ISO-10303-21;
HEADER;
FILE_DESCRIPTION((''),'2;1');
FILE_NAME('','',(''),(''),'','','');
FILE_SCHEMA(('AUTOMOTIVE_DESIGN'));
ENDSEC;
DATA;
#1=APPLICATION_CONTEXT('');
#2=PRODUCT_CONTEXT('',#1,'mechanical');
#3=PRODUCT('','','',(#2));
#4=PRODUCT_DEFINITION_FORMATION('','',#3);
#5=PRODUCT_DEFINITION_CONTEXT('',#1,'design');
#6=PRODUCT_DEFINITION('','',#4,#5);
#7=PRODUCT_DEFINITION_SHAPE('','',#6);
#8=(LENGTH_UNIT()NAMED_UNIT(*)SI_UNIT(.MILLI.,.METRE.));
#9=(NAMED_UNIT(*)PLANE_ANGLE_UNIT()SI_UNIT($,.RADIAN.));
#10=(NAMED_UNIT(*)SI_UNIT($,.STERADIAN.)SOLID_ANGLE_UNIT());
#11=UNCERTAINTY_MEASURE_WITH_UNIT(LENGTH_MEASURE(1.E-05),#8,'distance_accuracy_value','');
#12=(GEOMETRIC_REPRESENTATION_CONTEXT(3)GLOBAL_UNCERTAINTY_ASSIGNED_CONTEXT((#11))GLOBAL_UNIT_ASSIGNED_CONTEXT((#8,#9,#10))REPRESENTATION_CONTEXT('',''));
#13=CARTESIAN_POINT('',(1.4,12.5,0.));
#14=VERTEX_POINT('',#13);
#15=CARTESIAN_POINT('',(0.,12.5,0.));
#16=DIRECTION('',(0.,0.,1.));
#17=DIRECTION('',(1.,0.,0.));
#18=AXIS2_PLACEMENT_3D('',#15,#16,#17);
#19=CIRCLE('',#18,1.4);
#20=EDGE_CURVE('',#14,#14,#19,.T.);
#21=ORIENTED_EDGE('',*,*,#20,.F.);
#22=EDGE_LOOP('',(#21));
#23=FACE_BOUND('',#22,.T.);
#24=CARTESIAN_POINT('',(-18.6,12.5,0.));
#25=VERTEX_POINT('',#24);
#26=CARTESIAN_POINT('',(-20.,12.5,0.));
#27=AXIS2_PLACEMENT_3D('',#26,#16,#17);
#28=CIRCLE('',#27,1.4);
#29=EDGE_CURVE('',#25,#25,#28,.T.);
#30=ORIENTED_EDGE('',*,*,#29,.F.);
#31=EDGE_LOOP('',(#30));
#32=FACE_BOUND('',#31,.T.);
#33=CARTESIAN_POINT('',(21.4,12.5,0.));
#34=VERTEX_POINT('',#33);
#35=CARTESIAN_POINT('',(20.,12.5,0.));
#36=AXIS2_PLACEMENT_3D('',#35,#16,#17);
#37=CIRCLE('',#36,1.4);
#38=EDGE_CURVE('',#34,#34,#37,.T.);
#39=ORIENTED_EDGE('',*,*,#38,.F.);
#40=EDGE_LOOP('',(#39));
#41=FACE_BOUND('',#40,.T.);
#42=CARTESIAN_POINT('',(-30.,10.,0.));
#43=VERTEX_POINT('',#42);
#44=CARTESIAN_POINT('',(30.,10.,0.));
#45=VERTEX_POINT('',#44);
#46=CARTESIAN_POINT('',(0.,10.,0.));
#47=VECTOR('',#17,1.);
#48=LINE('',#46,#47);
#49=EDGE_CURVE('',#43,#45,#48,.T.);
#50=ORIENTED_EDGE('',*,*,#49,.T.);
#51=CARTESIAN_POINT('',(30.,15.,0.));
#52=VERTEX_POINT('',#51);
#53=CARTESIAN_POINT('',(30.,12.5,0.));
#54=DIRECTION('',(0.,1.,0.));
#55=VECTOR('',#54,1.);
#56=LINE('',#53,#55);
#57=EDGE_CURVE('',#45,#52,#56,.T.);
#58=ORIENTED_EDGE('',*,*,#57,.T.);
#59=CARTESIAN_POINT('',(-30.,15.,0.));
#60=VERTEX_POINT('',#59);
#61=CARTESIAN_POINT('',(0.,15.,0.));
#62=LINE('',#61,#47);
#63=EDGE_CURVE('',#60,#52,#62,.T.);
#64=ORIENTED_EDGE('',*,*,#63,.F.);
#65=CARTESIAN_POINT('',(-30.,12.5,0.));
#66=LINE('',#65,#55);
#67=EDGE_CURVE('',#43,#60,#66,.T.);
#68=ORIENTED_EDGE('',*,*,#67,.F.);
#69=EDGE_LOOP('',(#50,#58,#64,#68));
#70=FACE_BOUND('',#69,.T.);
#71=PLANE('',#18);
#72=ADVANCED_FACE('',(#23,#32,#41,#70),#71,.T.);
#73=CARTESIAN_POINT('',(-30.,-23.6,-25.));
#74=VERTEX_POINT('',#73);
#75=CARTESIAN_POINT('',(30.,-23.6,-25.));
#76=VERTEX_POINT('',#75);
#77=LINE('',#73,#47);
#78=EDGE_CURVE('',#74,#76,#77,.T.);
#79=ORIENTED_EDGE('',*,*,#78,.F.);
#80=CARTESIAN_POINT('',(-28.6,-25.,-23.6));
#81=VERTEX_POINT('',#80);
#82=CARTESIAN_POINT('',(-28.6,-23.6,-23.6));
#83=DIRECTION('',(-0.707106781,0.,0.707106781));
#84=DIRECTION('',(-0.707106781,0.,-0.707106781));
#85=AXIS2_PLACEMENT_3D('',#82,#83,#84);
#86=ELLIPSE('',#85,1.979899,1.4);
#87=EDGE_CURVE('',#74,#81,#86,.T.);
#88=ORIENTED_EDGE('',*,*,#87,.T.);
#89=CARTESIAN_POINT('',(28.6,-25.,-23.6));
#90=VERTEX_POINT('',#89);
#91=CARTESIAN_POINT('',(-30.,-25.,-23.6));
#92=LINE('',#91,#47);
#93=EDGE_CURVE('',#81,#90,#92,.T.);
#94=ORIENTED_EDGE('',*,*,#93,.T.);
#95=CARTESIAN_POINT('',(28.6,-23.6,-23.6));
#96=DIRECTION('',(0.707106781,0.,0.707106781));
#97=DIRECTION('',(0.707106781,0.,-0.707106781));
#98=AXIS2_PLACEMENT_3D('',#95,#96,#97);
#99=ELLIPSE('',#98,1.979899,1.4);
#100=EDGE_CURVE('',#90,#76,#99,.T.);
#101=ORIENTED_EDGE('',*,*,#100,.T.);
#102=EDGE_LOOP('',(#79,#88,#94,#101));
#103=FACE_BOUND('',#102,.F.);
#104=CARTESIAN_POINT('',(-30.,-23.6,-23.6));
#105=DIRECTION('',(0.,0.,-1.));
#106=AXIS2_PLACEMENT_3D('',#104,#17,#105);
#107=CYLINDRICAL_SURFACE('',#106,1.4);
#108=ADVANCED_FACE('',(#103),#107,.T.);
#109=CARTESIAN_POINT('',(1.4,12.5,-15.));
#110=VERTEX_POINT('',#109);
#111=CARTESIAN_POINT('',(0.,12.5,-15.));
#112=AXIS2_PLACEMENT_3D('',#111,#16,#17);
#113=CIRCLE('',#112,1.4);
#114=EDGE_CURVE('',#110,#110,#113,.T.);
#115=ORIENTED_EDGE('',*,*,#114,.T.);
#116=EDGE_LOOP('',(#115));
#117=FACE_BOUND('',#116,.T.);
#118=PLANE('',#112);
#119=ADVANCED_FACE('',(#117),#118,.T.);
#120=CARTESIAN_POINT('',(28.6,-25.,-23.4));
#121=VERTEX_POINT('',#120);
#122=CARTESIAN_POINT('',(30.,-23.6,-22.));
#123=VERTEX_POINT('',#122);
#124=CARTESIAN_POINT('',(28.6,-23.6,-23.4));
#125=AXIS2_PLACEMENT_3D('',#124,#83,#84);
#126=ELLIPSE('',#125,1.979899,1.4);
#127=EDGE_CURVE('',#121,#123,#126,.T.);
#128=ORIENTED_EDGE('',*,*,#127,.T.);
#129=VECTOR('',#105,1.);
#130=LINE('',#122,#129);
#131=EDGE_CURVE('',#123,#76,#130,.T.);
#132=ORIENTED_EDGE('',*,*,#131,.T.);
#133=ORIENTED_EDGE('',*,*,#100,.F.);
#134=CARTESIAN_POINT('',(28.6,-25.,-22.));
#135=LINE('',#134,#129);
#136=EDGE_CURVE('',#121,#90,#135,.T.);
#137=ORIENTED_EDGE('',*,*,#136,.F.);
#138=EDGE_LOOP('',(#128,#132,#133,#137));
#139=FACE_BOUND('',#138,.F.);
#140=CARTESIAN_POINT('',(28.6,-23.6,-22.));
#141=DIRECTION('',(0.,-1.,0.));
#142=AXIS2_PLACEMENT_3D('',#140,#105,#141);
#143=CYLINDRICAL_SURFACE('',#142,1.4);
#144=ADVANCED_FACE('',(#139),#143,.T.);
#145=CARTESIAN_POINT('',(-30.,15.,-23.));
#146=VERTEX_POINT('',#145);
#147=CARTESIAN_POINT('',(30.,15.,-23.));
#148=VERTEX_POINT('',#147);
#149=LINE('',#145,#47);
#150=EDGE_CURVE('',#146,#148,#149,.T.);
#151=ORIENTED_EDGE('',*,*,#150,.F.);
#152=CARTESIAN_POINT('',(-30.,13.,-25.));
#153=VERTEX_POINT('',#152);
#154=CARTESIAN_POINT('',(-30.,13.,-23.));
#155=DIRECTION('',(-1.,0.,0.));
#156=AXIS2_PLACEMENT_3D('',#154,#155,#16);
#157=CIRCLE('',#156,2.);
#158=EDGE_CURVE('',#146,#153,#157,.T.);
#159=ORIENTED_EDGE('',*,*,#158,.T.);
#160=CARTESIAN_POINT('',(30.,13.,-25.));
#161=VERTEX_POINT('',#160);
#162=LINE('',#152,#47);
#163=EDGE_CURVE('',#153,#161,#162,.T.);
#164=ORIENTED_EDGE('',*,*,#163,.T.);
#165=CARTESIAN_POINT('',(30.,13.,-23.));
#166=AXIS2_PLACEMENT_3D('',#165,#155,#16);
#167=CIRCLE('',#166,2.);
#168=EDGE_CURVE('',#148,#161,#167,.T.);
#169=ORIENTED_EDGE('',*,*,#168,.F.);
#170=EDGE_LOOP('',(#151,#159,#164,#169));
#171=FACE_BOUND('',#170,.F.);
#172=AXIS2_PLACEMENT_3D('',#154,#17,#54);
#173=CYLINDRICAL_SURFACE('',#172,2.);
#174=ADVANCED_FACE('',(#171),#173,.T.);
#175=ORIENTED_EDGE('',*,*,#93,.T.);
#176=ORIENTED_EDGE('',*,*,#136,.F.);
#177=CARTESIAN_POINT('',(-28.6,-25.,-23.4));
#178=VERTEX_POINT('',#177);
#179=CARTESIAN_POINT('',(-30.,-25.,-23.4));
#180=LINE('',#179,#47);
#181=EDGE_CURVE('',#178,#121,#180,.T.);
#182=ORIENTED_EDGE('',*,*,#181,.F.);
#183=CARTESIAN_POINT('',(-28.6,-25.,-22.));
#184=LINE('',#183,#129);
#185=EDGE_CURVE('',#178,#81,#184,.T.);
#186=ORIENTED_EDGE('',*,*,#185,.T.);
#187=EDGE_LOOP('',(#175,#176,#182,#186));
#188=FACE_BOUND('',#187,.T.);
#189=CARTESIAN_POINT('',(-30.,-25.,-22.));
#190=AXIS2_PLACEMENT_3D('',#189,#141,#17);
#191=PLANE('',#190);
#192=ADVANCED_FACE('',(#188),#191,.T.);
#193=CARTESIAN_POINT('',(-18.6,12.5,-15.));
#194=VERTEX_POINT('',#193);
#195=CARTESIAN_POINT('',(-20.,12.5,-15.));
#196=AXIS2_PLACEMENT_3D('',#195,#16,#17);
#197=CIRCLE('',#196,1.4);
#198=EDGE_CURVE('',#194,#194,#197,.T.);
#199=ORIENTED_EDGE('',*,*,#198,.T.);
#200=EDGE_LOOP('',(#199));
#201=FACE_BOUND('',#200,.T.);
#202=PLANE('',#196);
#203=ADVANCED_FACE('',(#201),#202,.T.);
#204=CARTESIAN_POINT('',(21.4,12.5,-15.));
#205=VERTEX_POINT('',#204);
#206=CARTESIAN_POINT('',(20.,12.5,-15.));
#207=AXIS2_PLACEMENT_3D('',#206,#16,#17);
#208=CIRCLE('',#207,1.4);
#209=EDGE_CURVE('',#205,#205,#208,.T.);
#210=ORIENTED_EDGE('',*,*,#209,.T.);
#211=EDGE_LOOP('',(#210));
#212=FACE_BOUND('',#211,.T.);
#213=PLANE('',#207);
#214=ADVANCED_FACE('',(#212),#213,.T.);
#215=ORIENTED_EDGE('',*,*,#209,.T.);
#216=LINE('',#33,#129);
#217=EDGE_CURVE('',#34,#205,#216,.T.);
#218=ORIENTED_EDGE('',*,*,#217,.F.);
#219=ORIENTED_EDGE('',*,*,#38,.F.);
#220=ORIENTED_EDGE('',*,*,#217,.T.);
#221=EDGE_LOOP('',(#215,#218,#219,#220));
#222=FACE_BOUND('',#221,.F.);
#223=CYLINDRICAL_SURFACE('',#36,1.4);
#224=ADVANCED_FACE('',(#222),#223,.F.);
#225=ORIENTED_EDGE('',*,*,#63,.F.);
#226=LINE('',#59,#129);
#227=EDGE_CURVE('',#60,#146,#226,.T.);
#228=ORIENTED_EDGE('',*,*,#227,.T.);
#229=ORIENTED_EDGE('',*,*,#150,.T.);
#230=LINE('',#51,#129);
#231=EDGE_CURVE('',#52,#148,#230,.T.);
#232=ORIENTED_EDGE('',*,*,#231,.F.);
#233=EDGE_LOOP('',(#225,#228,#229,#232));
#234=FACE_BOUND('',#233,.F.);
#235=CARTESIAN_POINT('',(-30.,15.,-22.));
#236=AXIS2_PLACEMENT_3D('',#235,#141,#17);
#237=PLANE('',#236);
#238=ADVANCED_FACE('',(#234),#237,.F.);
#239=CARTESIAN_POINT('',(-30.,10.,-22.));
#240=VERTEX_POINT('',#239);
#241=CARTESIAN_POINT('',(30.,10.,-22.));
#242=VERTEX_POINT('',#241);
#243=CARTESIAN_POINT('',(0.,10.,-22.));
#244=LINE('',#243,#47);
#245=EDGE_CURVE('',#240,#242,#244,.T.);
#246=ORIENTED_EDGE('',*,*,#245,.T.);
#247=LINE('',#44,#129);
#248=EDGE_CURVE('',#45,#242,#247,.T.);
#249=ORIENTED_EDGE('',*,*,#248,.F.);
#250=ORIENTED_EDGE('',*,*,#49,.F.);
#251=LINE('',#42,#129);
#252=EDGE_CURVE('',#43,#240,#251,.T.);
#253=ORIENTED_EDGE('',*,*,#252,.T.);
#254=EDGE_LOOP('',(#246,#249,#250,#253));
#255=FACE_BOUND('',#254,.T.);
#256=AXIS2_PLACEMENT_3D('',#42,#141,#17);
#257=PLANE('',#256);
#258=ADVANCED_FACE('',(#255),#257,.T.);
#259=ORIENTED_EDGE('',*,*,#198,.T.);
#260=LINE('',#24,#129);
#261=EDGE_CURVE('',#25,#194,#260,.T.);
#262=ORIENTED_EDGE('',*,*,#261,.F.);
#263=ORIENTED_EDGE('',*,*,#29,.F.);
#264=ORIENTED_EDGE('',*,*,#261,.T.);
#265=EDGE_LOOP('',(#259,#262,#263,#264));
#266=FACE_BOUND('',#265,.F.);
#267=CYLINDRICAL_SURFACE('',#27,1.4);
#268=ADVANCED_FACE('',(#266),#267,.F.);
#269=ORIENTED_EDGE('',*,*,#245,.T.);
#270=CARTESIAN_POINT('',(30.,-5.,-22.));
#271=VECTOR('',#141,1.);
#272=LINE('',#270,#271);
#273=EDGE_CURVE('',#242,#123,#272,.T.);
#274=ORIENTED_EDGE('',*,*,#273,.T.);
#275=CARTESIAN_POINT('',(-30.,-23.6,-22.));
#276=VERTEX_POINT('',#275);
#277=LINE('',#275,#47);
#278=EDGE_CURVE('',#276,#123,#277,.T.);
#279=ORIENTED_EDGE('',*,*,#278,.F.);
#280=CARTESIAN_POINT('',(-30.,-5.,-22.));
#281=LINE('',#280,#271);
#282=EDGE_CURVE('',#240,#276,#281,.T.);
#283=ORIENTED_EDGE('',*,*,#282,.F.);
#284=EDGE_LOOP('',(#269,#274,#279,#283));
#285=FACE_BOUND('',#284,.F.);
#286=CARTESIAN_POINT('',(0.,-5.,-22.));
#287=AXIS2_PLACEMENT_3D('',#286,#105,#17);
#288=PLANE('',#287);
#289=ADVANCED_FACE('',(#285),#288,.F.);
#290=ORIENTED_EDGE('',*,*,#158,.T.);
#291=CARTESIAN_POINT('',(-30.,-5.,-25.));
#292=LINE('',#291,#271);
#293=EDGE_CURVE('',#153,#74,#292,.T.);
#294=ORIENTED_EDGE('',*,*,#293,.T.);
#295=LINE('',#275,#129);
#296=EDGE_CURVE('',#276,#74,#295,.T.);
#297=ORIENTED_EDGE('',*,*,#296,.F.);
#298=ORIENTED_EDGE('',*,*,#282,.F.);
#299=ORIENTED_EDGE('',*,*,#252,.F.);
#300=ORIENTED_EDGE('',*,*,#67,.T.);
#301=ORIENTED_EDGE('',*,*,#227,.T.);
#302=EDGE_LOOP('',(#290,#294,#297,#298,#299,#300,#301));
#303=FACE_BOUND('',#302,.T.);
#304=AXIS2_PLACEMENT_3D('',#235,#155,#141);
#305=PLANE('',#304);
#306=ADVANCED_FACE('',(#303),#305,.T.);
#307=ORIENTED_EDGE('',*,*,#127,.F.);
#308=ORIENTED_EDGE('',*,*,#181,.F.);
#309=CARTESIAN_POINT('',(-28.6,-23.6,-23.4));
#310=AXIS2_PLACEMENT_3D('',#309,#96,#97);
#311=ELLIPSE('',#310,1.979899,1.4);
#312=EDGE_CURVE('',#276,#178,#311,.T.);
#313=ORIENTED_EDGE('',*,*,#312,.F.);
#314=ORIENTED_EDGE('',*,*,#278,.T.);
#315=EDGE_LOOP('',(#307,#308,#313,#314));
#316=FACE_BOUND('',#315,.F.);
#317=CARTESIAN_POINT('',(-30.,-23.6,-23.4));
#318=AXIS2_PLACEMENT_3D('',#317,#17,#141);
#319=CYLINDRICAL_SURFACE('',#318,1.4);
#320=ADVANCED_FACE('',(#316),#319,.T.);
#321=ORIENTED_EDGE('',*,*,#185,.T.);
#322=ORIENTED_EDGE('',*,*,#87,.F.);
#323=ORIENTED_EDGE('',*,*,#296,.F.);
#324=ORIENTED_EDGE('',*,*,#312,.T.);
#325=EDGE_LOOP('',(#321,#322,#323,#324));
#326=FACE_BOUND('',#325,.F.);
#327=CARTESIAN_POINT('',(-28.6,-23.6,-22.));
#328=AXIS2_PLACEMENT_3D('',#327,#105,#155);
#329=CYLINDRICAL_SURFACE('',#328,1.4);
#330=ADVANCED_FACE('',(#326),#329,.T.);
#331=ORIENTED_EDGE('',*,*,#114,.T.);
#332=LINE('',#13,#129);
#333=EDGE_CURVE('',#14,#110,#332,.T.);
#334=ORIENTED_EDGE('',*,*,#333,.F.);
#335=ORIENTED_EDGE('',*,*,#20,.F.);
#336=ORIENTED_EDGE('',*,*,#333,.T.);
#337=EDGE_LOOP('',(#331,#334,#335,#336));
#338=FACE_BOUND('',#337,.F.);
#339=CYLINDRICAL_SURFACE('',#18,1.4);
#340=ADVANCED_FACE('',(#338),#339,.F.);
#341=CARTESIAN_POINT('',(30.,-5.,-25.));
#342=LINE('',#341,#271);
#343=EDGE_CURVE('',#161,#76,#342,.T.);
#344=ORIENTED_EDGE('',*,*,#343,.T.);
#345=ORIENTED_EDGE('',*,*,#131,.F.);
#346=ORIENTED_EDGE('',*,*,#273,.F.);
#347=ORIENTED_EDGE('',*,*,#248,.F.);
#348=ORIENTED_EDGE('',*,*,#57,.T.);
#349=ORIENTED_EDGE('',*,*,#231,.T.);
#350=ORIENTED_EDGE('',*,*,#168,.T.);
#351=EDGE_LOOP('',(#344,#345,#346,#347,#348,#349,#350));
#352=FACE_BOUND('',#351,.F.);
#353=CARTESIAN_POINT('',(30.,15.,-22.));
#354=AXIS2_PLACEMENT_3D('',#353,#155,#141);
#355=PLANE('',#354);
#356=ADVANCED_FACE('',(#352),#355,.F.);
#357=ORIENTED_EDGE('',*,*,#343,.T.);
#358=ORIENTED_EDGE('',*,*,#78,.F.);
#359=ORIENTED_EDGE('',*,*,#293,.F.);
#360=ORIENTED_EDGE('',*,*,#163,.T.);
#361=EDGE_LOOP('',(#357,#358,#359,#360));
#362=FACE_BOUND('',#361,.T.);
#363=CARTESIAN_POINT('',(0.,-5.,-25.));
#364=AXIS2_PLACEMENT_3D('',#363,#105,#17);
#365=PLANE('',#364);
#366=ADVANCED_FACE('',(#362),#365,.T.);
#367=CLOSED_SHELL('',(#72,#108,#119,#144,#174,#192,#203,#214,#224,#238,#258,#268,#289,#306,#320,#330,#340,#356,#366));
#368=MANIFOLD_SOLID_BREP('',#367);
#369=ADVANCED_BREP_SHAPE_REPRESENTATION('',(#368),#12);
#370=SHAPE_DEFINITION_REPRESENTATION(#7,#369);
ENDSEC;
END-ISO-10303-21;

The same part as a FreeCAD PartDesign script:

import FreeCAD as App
import Part
import Sketcher
from FreeCAD import Vector


def edges_at(feature, points):
    """Names of the edges that pass closest to the given points."""
    edges = feature.Shape.Edges
    near = lambda p: min(range(len(edges)), key=lambda i: edges[i].distToShape(Part.Vertex(*p))[0])
    return sorted({f"Edge{near(p) + 1}" for p in points})


def add_polygon(sketch, points):
    """Adds a closed chain of lines whose ends are joined by coincident constraints."""
    first, n = sketch.GeometryCount, len(points)
    for a, b in zip(points, points[1:] + points[:1]):
        sketch.addGeometry(Part.LineSegment(App.Vector(*a, 0), App.Vector(*b, 0)), False)
    for i in range(n):
        sketch.addConstraint(Sketcher.Constraint("Coincident", first + i, 2, first + (i + 1) % n, 1))

doc = App.newDocument("Part")
body = doc.addObject("PartDesign::Body", "Body")

# Sketch on XY plane
sketch1 = body.newObject("Sketcher::SketchObject", "Sketch")
sketch1.AttachmentSupport = (doc.getObject("XY_Plane"), [""])
sketch1.MapMode = "FlatFace"
add_polygon(sketch1, [(-30, 15), (-30, 10), (30, 10), (30, 15)])  # lines 0-3
sketch1.addConstraint(Sketcher.Constraint("Vertical", 0))
sketch1.addConstraint(Sketcher.Constraint("Horizontal", 1))
sketch1.addConstraint(Sketcher.Constraint("Vertical", 2))
sketch1.addConstraint(Sketcher.Constraint("Horizontal", 3))
sketch1.addConstraint(Sketcher.Constraint("DistanceX", 1, 1, 1, 2, 60.0))
sketch1.addConstraint(Sketcher.Constraint("DistanceY", 0, 2, 0, 1, 5.0))
sketch1.addConstraint(Sketcher.Constraint("DistanceX", 0, 2, -1, 1, 30.0))
sketch1.addConstraint(Sketcher.Constraint("DistanceY", -1, 1, 0, 2, 10.0))
pad1 = body.newObject("PartDesign::Pad", "Pad")
pad1.Profile = sketch1
pad1.Length = 22
pad1.Reversed = True

# Sketch on XY plane
sketch2 = body.newObject("Sketcher::SketchObject", "Sketch001")
sketch2.AttachmentSupport = (doc.getObject("XY_Plane"), [""])
sketch2.MapMode = "FlatFace"
sketch2.AttachmentOffset = App.Placement(Vector(0, 0, -22), App.Rotation())
add_polygon(sketch2, [(-30, -25), (-30, 15), (30, 15), (30, -25)])  # lines 0-3
sketch2.addConstraint(Sketcher.Constraint("Vertical", 0))
sketch2.addConstraint(Sketcher.Constraint("Horizontal", 1))
sketch2.addConstraint(Sketcher.Constraint("Vertical", 2))
sketch2.addConstraint(Sketcher.Constraint("Horizontal", 3))
sketch2.addConstraint(Sketcher.Constraint("DistanceX", 1, 1, 1, 2, 60.0))
sketch2.addConstraint(Sketcher.Constraint("DistanceY", 0, 1, 0, 2, 40.0))
sketch2.addConstraint(Sketcher.Constraint("DistanceX", 0, 2, -1, 1, 30.0))
sketch2.addConstraint(Sketcher.Constraint("DistanceY", -1, 1, 0, 2, 15.0))
pad2 = body.newObject("PartDesign::Pad", "Pad001")
pad2.Profile = sketch2
pad2.Length = 3
pad2.Reversed = True
doc.recompute()

fillet = body.newObject("PartDesign::Fillet", "Fillet")
fillet.Base = (pad2, edges_at(pad2, [(0, 15, -25)]))
fillet.Radius = 2
doc.recompute()

fillet2 = body.newObject("PartDesign::Fillet", "Fillet001")
fillet2.Base = (fillet, edges_at(fillet, [
    (30, -25, -23.5),
    (-30, -25, -23.5),
    (0, -25, -22),
    (0, -25, -25),
]))
fillet2.Radius = 1.4

# Sketch on XY plane
sketch3 = body.newObject("Sketcher::SketchObject", "Sketch002")
sketch3.AttachmentSupport = (doc.getObject("XY_Plane"), [""])
sketch3.MapMode = "FlatFace"
sketch3.addGeometry(Part.Circle(Vector(-20, 12.5, 0), Vector(0, 0, 1), 1.4), False)
sketch3.addGeometry(Part.Circle(Vector(0, 12.5, 0), Vector(0, 0, 1), 1.4), False)
sketch3.addGeometry(Part.Circle(Vector(20, 12.5, 0), Vector(0, 0, 1), 1.4), False)
sketch3.addConstraint(Sketcher.Constraint("Equal", 0, 1))
sketch3.addConstraint(Sketcher.Constraint("Equal", 1, 2))
sketch3.addConstraint(Sketcher.Constraint("Symmetric", 0, 3, 2, 3, -2))
sketch3.addConstraint(Sketcher.Constraint("PointOnObject", 1, 3, -2))
sketch3.addConstraint(Sketcher.Constraint("Horizontal", 0, 3, 1, 3))
sketch3.addConstraint(Sketcher.Constraint("Diameter", 0, 2.8))
sketch3.addConstraint(Sketcher.Constraint("DistanceX", 0, 3, -1, 1, 20.0))
sketch3.addConstraint(Sketcher.Constraint("DistanceY", -1, 1, 0, 3, 12.5))
pocket1 = body.newObject("PartDesign::Pocket", "Pocket")
pocket1.Profile = sketch3
pocket1.Length = 15

doc.recompute()
